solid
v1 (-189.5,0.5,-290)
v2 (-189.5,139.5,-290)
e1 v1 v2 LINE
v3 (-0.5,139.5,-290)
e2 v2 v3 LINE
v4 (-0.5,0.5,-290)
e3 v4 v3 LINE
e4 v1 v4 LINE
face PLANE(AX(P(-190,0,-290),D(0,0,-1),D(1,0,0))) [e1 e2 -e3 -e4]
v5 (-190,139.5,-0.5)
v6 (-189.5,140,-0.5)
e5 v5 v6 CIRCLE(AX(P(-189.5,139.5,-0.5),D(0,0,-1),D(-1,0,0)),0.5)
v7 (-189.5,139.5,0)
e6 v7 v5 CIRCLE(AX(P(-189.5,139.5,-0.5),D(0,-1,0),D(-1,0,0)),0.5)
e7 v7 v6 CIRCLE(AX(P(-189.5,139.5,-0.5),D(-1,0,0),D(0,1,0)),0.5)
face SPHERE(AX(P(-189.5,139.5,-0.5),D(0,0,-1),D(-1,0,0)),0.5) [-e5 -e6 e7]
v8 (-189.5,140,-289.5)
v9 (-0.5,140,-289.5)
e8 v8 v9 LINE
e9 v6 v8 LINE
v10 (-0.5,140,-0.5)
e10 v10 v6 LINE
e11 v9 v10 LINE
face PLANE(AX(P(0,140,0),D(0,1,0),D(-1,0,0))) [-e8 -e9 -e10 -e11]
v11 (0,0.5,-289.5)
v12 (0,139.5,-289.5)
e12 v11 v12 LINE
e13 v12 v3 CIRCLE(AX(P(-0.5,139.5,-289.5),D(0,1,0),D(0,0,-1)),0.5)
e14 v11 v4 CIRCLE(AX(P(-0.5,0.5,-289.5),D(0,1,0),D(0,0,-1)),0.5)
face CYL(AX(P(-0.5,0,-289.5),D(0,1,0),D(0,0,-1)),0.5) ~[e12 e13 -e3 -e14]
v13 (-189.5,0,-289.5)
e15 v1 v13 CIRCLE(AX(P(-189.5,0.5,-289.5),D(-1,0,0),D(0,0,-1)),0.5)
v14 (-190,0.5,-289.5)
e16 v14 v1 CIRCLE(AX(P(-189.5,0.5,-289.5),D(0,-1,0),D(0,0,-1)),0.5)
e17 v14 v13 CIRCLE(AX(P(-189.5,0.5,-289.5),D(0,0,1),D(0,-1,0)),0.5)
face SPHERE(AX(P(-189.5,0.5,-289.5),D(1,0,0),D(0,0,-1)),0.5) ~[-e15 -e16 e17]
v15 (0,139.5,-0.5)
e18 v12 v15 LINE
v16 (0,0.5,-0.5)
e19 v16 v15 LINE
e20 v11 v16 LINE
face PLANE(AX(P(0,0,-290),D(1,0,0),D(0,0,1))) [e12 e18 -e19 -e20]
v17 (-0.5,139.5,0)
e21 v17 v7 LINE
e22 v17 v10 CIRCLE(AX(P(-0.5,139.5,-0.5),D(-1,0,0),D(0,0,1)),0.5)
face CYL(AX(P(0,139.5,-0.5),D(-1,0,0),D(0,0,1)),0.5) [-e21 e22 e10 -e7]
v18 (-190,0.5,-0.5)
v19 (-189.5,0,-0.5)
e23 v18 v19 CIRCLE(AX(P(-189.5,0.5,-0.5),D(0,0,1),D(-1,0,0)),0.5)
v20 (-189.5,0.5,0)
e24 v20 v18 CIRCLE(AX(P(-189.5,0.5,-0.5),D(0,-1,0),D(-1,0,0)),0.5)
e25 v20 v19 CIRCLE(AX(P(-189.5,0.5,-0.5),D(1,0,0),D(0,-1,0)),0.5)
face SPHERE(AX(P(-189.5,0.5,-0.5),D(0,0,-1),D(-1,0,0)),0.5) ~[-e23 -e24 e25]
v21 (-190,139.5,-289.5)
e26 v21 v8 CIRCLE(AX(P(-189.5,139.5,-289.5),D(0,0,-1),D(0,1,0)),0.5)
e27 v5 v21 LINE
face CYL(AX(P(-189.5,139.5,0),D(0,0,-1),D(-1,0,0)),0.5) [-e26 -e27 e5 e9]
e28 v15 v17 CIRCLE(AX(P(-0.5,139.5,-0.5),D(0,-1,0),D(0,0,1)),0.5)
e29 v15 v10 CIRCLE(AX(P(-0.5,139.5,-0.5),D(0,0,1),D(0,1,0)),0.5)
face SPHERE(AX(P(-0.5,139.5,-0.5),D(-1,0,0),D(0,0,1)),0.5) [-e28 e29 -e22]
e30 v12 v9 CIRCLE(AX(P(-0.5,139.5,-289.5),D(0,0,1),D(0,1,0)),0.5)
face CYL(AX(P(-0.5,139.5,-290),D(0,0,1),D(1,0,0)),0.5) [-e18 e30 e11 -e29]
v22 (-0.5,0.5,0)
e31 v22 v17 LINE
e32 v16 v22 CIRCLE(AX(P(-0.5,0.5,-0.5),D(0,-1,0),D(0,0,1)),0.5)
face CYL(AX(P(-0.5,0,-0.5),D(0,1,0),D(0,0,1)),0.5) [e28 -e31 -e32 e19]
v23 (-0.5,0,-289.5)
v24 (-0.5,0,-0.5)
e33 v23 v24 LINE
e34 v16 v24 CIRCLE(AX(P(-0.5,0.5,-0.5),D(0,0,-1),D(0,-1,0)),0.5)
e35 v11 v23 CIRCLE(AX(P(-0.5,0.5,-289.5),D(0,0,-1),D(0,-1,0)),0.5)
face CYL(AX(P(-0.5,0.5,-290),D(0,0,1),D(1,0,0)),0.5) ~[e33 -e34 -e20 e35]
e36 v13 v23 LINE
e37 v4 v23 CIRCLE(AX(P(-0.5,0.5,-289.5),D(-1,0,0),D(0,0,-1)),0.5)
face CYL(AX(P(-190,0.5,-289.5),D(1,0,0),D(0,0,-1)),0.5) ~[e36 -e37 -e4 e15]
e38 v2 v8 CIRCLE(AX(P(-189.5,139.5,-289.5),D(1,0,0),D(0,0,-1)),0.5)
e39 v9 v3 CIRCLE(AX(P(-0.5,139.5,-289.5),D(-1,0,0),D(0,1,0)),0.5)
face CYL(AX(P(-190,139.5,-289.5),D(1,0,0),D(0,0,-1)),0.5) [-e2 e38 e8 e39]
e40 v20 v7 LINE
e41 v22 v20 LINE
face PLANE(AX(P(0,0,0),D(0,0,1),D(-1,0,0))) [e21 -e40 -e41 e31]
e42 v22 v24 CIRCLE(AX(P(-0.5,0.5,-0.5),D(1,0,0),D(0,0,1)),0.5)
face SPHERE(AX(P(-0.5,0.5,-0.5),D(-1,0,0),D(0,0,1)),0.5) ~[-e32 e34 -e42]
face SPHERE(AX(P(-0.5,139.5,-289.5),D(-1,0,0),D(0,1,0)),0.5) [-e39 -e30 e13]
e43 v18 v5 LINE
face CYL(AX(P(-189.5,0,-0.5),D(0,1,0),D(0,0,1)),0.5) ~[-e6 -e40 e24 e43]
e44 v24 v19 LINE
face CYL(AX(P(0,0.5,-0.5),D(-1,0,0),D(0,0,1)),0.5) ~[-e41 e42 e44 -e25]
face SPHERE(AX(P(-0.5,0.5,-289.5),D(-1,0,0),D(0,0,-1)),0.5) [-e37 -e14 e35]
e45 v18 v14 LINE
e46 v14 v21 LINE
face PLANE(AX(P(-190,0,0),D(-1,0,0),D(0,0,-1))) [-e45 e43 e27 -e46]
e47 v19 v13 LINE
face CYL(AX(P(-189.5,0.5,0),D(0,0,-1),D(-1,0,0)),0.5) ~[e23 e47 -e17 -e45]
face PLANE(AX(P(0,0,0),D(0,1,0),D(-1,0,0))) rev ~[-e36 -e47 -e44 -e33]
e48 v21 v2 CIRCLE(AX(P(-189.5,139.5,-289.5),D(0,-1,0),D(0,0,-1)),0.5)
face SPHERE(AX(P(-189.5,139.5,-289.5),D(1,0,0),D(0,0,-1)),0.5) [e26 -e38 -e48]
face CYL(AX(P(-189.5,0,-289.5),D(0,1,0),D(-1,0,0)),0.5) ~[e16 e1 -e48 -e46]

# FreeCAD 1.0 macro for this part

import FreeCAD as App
import Part
import Sketcher

V = App.Vector

doc = App.newDocument("Part")
body = doc.addObject("PartDesign::Body", "Body")

# Sketch on XZ plane
sketch1 = body.newObject("Sketcher::SketchObject", "Sketch")
sketch1.AttachmentSupport = (doc.getObject("XZ_Plane"), [""])
sketch1.MapMode = "FlatFace"
sketch1.addGeometry(Part.LineSegment(V(-190, 0, 0), V(0, 0, 0)), False)
sketch1.addGeometry(Part.LineSegment(V(0, 0, 0), V(0, -290, 0)), False)
sketch1.addGeometry(Part.LineSegment(V(0, -290, 0), V(-190, -290, 0)), False)
sketch1.addGeometry(Part.LineSegment(V(-190, -290, 0), V(-190, 0, 0)), False)
sketch1.addConstraint(Sketcher.Constraint("Coincident", 0, 2, 1, 1))
sketch1.addConstraint(Sketcher.Constraint("Coincident", 1, 2, 2, 1))
sketch1.addConstraint(Sketcher.Constraint("Coincident", 2, 2, 3, 1))
sketch1.addConstraint(Sketcher.Constraint("Coincident", 3, 2, 0, 1))
sketch1.addConstraint(Sketcher.Constraint("Horizontal", 0))
sketch1.addConstraint(Sketcher.Constraint("Vertical", 1))
sketch1.addConstraint(Sketcher.Constraint("Horizontal", 2))
sketch1.addConstraint(Sketcher.Constraint("Vertical", 3))
sketch1.addConstraint(Sketcher.Constraint("Coincident", 0, 2, -1, 1))
sketch1.addConstraint(Sketcher.Constraint("DistanceX", 0, 1, 0, 2, 190.0))
sketch1.addConstraint(Sketcher.Constraint("DistanceY", 1, 2, 1, 1, 290.0))
pad1 = body.newObject("PartDesign::Pad", "Pad")
pad1.Profile = sketch1
pad1.Length = 140
pad1.Reversed = True
doc.recompute()

fillet = body.newObject("PartDesign::Fillet", "Fillet")
fillet.Base = (pad1, ["Edge1"])
fillet.UseAllEdges = True
fillet.Radius = 0.5

doc.recompute()
